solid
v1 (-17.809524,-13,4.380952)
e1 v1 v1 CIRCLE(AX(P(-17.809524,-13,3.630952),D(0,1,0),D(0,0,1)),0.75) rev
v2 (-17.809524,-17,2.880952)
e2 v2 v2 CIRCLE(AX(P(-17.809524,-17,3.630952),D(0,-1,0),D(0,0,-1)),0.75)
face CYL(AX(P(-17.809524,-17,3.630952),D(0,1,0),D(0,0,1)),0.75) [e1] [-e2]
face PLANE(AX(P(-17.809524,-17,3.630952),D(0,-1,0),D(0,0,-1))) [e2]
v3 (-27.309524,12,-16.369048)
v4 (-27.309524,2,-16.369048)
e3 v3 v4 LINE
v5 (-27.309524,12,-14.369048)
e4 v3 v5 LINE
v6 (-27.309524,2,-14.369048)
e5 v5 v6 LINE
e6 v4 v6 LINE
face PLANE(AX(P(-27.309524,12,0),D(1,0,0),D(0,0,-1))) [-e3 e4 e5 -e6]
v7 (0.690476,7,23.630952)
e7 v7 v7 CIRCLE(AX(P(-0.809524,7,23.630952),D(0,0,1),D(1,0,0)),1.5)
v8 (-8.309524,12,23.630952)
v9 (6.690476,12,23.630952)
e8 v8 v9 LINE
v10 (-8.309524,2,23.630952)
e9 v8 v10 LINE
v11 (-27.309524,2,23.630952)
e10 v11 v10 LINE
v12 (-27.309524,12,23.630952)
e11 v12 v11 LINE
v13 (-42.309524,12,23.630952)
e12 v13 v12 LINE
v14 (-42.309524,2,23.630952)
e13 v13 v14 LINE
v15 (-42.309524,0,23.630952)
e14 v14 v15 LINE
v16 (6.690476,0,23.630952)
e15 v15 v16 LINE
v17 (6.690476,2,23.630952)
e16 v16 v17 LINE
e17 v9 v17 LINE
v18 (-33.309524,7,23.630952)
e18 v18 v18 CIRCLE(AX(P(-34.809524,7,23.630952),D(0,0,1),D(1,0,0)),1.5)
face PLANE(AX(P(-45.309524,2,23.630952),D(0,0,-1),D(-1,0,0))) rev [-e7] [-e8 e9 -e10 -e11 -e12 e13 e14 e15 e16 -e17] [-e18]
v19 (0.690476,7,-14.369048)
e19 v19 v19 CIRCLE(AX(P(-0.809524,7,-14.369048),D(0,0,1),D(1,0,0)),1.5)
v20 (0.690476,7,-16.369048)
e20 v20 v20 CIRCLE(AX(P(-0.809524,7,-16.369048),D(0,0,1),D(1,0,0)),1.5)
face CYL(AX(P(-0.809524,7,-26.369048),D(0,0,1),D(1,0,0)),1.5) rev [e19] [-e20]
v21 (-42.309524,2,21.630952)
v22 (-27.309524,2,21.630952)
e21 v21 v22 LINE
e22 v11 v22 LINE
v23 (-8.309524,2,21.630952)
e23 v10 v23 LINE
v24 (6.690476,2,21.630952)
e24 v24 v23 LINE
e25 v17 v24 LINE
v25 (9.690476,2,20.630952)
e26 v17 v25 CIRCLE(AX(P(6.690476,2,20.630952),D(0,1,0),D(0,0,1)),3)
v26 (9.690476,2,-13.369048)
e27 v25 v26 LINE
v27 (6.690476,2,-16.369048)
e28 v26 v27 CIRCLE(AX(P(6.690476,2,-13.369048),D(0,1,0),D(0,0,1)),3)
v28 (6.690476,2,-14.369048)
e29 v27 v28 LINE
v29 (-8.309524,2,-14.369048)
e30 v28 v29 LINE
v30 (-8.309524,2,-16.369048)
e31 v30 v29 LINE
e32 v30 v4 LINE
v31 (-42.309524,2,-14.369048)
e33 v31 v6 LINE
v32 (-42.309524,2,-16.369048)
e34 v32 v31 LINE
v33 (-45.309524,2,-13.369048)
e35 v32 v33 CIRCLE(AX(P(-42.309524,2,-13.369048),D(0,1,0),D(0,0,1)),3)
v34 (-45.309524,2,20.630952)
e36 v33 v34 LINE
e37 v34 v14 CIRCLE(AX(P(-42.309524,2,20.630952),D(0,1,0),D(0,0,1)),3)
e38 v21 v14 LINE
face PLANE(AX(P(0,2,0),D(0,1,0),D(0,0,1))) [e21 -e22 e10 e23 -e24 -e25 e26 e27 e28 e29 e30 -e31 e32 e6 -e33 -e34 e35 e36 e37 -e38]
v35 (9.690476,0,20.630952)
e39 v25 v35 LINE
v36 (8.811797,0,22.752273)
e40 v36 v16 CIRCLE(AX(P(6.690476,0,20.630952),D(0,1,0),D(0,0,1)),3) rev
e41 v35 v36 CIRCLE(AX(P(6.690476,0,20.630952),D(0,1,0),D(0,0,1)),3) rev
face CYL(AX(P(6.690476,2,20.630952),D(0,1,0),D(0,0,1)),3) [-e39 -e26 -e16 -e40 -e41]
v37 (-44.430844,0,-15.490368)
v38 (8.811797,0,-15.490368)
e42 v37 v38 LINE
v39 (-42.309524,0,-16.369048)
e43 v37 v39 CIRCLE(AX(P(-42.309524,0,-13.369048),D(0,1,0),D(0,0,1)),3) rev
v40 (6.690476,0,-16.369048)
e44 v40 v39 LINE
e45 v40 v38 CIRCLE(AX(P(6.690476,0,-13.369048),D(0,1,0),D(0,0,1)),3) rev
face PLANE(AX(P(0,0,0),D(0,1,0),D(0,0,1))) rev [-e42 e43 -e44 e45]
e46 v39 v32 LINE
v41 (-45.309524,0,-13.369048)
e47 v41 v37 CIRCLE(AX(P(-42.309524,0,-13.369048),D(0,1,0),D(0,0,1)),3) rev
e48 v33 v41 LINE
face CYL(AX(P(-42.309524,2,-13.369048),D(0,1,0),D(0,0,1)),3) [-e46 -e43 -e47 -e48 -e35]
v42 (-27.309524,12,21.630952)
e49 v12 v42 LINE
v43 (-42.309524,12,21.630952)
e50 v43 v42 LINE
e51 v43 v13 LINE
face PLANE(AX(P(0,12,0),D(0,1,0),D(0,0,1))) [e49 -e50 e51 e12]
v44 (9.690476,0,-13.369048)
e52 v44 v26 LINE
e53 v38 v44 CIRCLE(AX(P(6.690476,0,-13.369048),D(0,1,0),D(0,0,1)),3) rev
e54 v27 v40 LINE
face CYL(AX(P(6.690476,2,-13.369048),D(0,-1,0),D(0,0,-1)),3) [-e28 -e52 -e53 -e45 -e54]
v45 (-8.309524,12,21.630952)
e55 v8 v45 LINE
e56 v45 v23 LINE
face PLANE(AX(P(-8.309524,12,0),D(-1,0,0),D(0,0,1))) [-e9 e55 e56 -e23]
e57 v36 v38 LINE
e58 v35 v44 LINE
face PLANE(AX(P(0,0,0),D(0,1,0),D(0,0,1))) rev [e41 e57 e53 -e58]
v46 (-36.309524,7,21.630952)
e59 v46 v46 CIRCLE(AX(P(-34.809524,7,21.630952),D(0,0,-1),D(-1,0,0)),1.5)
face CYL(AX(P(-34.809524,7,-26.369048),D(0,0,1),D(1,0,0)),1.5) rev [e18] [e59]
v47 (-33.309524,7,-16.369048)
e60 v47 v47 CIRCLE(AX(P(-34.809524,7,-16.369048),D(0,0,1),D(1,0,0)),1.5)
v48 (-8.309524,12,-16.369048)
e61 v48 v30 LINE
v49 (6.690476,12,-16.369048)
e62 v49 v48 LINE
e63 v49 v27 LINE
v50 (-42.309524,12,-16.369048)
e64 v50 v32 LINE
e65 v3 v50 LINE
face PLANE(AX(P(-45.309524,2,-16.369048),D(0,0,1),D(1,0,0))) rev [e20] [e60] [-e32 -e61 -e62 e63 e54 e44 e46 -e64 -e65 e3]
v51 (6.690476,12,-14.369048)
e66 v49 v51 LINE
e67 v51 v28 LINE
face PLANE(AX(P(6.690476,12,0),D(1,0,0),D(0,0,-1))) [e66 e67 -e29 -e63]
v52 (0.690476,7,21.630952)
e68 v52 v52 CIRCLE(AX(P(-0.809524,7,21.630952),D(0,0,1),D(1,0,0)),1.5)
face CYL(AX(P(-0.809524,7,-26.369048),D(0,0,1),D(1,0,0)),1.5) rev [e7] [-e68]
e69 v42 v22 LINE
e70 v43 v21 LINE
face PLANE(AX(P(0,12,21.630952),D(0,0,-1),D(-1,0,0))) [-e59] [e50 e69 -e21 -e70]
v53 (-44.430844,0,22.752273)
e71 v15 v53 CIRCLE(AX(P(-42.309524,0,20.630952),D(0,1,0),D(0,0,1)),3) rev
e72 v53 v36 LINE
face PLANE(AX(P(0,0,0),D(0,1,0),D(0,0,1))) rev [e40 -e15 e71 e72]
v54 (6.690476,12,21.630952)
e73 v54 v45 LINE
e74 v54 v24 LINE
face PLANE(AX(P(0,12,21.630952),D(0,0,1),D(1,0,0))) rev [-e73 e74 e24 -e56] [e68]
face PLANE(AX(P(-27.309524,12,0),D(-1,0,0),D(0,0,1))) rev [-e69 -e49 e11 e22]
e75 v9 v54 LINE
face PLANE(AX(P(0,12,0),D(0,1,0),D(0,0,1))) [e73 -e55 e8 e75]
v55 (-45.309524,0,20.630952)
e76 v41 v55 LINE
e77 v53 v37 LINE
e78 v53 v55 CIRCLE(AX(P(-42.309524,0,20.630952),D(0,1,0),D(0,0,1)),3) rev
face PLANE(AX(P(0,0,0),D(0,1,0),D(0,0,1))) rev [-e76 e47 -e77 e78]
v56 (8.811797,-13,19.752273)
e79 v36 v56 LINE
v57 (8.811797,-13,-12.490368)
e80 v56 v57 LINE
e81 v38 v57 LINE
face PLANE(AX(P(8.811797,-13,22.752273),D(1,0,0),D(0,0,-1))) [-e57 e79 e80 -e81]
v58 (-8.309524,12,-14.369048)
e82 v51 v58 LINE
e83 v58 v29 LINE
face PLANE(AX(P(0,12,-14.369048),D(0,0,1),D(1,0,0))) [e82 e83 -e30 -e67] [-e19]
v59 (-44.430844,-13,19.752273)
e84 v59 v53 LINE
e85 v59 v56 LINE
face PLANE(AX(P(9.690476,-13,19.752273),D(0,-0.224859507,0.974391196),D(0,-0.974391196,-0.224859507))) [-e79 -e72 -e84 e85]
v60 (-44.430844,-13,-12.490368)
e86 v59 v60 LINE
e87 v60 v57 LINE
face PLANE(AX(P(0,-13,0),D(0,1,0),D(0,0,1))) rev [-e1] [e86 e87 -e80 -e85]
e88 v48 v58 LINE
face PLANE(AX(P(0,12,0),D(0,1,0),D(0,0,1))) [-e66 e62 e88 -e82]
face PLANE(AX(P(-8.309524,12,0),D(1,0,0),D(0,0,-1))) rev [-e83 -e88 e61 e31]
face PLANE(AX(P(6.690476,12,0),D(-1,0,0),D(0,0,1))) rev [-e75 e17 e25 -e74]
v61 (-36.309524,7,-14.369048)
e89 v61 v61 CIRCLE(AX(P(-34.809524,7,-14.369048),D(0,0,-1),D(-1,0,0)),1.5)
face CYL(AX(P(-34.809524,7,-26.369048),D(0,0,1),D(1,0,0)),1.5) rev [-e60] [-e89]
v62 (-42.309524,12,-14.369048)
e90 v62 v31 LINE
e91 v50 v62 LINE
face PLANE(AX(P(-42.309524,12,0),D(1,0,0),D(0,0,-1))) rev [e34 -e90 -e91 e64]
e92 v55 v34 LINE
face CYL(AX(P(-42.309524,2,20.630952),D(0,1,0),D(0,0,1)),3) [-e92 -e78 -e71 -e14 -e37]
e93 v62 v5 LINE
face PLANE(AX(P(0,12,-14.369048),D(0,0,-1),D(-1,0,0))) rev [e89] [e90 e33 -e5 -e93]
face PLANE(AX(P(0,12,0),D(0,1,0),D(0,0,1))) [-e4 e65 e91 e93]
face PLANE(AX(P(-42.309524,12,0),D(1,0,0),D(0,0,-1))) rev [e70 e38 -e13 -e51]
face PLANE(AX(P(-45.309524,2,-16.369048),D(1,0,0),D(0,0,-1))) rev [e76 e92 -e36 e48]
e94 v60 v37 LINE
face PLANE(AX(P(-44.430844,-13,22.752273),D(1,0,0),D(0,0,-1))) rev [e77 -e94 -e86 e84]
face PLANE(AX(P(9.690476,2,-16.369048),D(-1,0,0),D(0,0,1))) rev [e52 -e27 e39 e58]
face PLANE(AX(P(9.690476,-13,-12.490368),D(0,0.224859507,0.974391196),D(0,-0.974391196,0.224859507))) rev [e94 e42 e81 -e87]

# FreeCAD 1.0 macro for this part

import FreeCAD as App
import Part
import Sketcher

V = App.Vector


def edges_at(feature, points):
    """Names of the edges that pass closest to the given points."""
    edges = feature.Shape.Edges
    near = lambda p: min(range(len(edges)), key=lambda i: edges[i].distToShape(Part.Vertex(*p))[0])
    return sorted({f"Edge{near(p) + 1}" for p in points})


def add_polygon(sketch, points):
    """Adds a closed chain of lines whose ends are joined by coincident constraints."""
    first, n = sketch.GeometryCount, len(points)
    for a, b in zip(points, points[1:] + points[:1]):
        sketch.addGeometry(Part.LineSegment(App.Vector(*a, 0), App.Vector(*b, 0)), False)
    for i in range(n):
        sketch.addConstraint(Sketcher.Constraint("Coincident", first + i, 2, first + (i + 1) % n, 1))

doc = App.newDocument("Part")
body = doc.addObject("PartDesign::Body", "Body")

# Sketch on XZ plane
sketch1 = body.newObject("Sketcher::SketchObject", "Sketch")
sketch1.AttachmentSupport = (doc.getObject("XZ_Plane"), [""])
sketch1.MapMode = "FlatFace"
add_polygon(sketch1, [(-45, -16), (-45, 24), (10, 24), (10, -16)])  # lines 0-3
sketch1.addConstraint([
    Sketcher.Constraint("Vertical", 0),
    Sketcher.Constraint("Horizontal", 1),
    Sketcher.Constraint("Vertical", 2),
    Sketcher.Constraint("Horizontal", 3),
    Sketcher.Constraint("DistanceX", 1, 1, 1, 2, 55.0),
    Sketcher.Constraint("DistanceY", 0, 1, 0, 2, 40.0),
    Sketcher.Constraint("DistanceX", 0, 2, -1, 1, 45.309524),
    Sketcher.Constraint("DistanceY", -1, 1, 0, 2, 23.630952),
])
pad1 = body.newObject("PartDesign::Pad", "Pad")
pad1.Profile = sketch1
pad1.Length = 2
pad1.Reversed = True

# Sketch on XZ plane
sketch2 = body.newObject("Sketcher::SketchObject", "Sketch001")
sketch2.AttachmentSupport = (doc.getObject("XZ_Plane"), [""])
sketch2.MapMode = "FlatFace"
sketch2.AttachmentOffset = App.Placement(V(0, 0, -2), App.Rotation())
add_polygon(sketch2, [(-42.3, -16.4), (-42.3, -14.4), (-27.3, -14.4), (-27.3, -16.4)])  # lines 0-3
add_polygon(sketch2, [(-42.3, 21.6), (-42.3, 23.6), (-27.3, 23.6), (-27.3, 21.6)])  # lines 4-7
add_polygon(sketch2, [(-8.3, 21.6), (-8.3, 23.6), (6.7, 23.6), (6.7, 21.6)])  # lines 8-11
add_polygon(sketch2, [(-8.3, -16.4), (-8.3, -14.4), (6.7, -14.4), (6.7, -16.4)])  # lines 12-15
sketch2.addConstraint([
    Sketcher.Constraint("Vertical", 0),
    Sketcher.Constraint("Horizontal", 1),
    Sketcher.Constraint("Vertical", 2),
    Sketcher.Constraint("Horizontal", 3),
    Sketcher.Constraint("Vertical", 4),
    Sketcher.Constraint("Horizontal", 5),
    Sketcher.Constraint("Vertical", 6),
    Sketcher.Constraint("Horizontal", 7),
    Sketcher.Constraint("Vertical", 8),
    Sketcher.Constraint("Horizontal", 9),
    Sketcher.Constraint("Vertical", 10),
    Sketcher.Constraint("Horizontal", 11),
    Sketcher.Constraint("Vertical", 12),
    Sketcher.Constraint("Horizontal", 13),
    Sketcher.Constraint("Vertical", 14),
    Sketcher.Constraint("Horizontal", 15),
    Sketcher.Constraint("Horizontal", 5, 2, 8, 2),
    Sketcher.Constraint("Horizontal", 7, 2, 10, 2),
    Sketcher.Constraint("Horizontal", 1, 2, 12, 2),
    Sketcher.Constraint("Horizontal", 3, 2, 14, 2),
    Sketcher.Constraint("Vertical", 3, 2, 4, 2),
    Sketcher.Constraint("Vertical", 2, 2, 5, 2),
    Sketcher.Constraint("Vertical", 11, 2, 12, 2),
    Sketcher.Constraint("Vertical", 10, 2, 13, 2),
    Sketcher.Constraint("Equal", 7, 9),
    Sketcher.Constraint("Equal", 2, 4),
    Sketcher.Constraint("DistanceX", 1, 1, 1, 2, 15.0),
    Sketcher.Constraint("DistanceY", 0, 1, 0, 2, 2.0),
    Sketcher.Constraint("DistanceY", 0, 2, 4, 2, 38.0),
    Sketcher.Constraint("DistanceX", 5, 2, 8, 2, 19.0),
    Sketcher.Constraint("DistanceX", 0, 2, -1, 1, 42.309524),
    Sketcher.Constraint("DistanceY", 0, 2, -1, 1, 14.369048),
])
pad2 = body.newObject("PartDesign::Pad", "Pad001")
pad2.Profile = sketch2
pad2.Length = 10
pad2.Reversed = True
doc.recompute()

fillet = body.newObject("PartDesign::Fillet", "Fillet")
fillet.Base = (pad2, edges_at(pad2, [(-45.31, 1, -16.369)]))
fillet.Radius = 3
doc.recompute()

fillet2 = body.newObject("PartDesign::Fillet", "Fillet001")
fillet2.Base = (fillet, edges_at(fillet, [(-45.31, 1, 23.631)]))
fillet2.Radius = 3
doc.recompute()

fillet3 = body.newObject("PartDesign::Fillet", "Fillet002")
fillet3.Base = (fillet2, edges_at(fillet2, [(9.69, 1, -16.369)]))
fillet3.Radius = 3
doc.recompute()

fillet4 = body.newObject("PartDesign::Fillet", "Fillet003")
fillet4.Base = (fillet3, edges_at(fillet3, [(9.69, 1, 23.631)]))
fillet4.Radius = 3

# Sketch on XY plane
sketch3 = body.newObject("Sketcher::SketchObject", "Sketch002")
sketch3.AttachmentSupport = (doc.getObject("XY_Plane"), [""])
sketch3.MapMode = "FlatFace"
sketch3.AttachmentOffset = App.Placement(V(0, 0, 23.630952), App.Rotation())
sketch3.addGeometry([
    Part.Circle(V(-0.8, 7, 0), V(0, 0, 1), 1.5),
    Part.Circle(V(-34.8, 7, 0), V(0, 0, 1), 1.5),
], False)
sketch3.addConstraint([
    Sketcher.Constraint("Equal", 0, 1),
    Sketcher.Constraint("Horizontal", 0, 3, 1, 3),
    Sketcher.Constraint("Diameter", 0, 3.0),
    Sketcher.Constraint("DistanceY", -1, 1, 0, 3, 7.0),
    Sketcher.Constraint("DistanceX", 1, 3, 0, 3, 34.0),
    Sketcher.Constraint("DistanceX", 0, 3, -1, 1, 0.809524),
])
pocket1 = body.newObject("PartDesign::Pocket", "Pocket")
pocket1.Profile = sketch3
pocket1.Length = 50

# Sketch on XZ plane
sketch4 = body.newObject("Sketcher::SketchObject", "Sketch003")
sketch4.AttachmentSupport = (doc.getObject("XZ_Plane"), [""])
sketch4.MapMode = "FlatFace"
add_polygon(sketch4, [(-44, 23), (-44, -15), (9, -15), (9, 23)])  # lines 0-3
sketch4.addConstraint([
    Sketcher.Constraint("Vertical", 0),
    Sketcher.Constraint("Horizontal", 1),
    Sketcher.Constraint("Vertical", 2),
    Sketcher.Constraint("Horizontal", 3),
    Sketcher.Constraint("DistanceX", 1, 1, 1, 2, 53.242641),
    Sketcher.Constraint("DistanceY", 0, 2, 0, 1, 38.242641),
    Sketcher.Constraint("DistanceX", 0, 2, -1, 1, 44.430844),
    Sketcher.Constraint("DistanceY", 0, 2, -1, 1, 15.490368),
])
pad3 = body.newObject("PartDesign::Pad", "Pad002")
pad3.Profile = sketch4
pad3.Length = 13

# Sketch on YZ plane
sketch5 = body.newObject("Sketcher::SketchObject", "Sketch004")
sketch5.AttachmentSupport = (doc.getObject("YZ_Plane"), [""])
sketch5.MapMode = "FlatFace"
sketch5.AttachmentOffset = App.Placement(V(0, 0, -44.430844), App.Rotation())
add_polygon(sketch5, [(-13, -15.5), (-13, -12.5), (0, -15.5)])  # lines 0-2
add_polygon(sketch5, [(0, 22.8), (-13, 19.8), (-13, 22.8)])  # lines 3-5
sketch5.addConstraint([
    Sketcher.Constraint("Vertical", 0),
    Sketcher.Constraint("Horizontal", 2),
    Sketcher.Constraint("Vertical", 4),
    Sketcher.Constraint("Horizontal", 5),
    Sketcher.Constraint("PointOnObject", 1, 2, -2),
    Sketcher.Constraint("PointOnObject", 5, 2, -2),
    Sketcher.Constraint("Vertical", 2, 2, 3, 2),
    Sketcher.Constraint("Equal", 0, 4),
    Sketcher.Constraint("DistanceX", 2, 2, 2, 1, 13.0),
    Sketcher.Constraint("DistanceY", 0, 1, 0, 2, 3.0),
    Sketcher.Constraint("DistanceY", 0, 2, 3, 2, 32.242641),
    Sketcher.Constraint("DistanceY", 0, 2, -1, 1, 12.490368),
])
pocket2 = body.newObject("PartDesign::Pocket", "Pocket001")
pocket2.Profile = sketch5
pocket2.Type = "ThroughAll"
pocket2.Reversed = True

# Sketch on XZ plane
sketch6 = body.newObject("Sketcher::SketchObject", "Sketch005")
sketch6.AttachmentSupport = (doc.getObject("XZ_Plane"), [""])
sketch6.MapMode = "FlatFace"
sketch6.AttachmentOffset = App.Placement(V(0, 0, 13), App.Rotation())
sketch6.addGeometry(Part.Circle(V(-17.8, 3.6, 0), V(0, 0, 1), 0.8), False)
sketch6.addConstraint([
    Sketcher.Constraint("Diameter", 0, 1.5),
    Sketcher.Constraint("DistanceX", 0, 3, -1, 1, 17.809524),
    Sketcher.Constraint("DistanceY", -1, 1, 0, 3, 3.630952),
])
pad4 = body.newObject("PartDesign::Pad", "Pad003")
pad4.Profile = sketch6
pad4.Length = 4

doc.recompute()
